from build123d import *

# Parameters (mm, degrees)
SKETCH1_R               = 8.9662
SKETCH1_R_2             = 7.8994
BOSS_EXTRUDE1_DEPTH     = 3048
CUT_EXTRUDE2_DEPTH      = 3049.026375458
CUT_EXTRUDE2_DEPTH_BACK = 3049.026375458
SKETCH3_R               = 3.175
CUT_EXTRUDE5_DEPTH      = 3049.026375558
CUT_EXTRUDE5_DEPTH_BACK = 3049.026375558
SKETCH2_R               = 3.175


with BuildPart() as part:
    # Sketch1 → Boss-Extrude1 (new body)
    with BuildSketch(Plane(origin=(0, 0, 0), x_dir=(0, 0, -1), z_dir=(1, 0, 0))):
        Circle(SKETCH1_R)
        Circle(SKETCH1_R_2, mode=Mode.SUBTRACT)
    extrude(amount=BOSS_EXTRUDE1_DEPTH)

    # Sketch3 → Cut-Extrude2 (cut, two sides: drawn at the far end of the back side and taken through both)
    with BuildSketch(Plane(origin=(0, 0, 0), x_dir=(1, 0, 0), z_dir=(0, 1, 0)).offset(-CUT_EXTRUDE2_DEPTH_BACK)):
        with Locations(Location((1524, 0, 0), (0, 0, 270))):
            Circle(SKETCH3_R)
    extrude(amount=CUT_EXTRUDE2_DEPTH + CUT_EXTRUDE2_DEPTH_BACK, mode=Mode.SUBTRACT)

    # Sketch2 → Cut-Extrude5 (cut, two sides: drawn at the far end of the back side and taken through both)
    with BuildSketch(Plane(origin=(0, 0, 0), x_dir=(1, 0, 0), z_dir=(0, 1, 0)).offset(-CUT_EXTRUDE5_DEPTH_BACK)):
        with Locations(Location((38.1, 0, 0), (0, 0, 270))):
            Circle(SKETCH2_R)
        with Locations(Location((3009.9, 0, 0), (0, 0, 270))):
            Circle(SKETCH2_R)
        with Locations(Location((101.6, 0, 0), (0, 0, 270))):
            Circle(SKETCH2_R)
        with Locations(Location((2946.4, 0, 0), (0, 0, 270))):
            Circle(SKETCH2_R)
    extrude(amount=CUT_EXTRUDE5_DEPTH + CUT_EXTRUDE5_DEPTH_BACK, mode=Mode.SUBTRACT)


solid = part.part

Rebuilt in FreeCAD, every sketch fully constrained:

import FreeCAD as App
import Part
import Sketcher
Q = App.Units.Quantity

doc = App.newDocument("Part")
body = doc.addObject("PartDesign::Body", "Body")

# Sketch on YZ plane
sketch1 = body.newObject("Sketcher::SketchObject", "Sketch")
sketch1.AttachmentSupport = (doc.getObject("YZ_Plane"), [""])
sketch1.MapMode = "FlatFace"
sketch1.addGeometry([
    Part.Circle(App.Vector(0, 0, 0), App.Vector(0, 0, 1), 8.9662),
    Part.Circle(App.Vector(0, 0, 0), App.Vector(0, 0, 1), 7.8994),
], False)
sketch1.addConstraint([
    Sketcher.Constraint("Coincident", 0, 3, -1, 1),
    Sketcher.Constraint("Coincident", 1, 3, -1, 1),
    Sketcher.Constraint("Diameter", 0, Q("0.706 in")),
    Sketcher.Constraint("Diameter", 1, Q("0.622 in")),
])
pad1 = body.newObject("PartDesign::Pad", "Pad")
pad1.Profile = sketch1
pad1.Length = Q("120 in")

# Sketch on XZ plane
sketch2 = body.newObject("Sketcher::SketchObject", "Sketch001")
sketch2.AttachmentSupport = (doc.getObject("XZ_Plane"), [""])
sketch2.MapMode = "FlatFace"
sketch2.addGeometry(Part.Circle(App.Vector(1524, 0, 0), App.Vector(0, 0, 1), 3.175), False)
sketch2.addConstraint([
    Sketcher.Constraint("PointOnObject", 0, 3, -1),
    Sketcher.Constraint("Diameter", 0, Q("0.25 in")),
    Sketcher.Constraint("DistanceX", -1, 1, 0, 3, Q("60 in")),
])
pocket1 = body.newObject("PartDesign::Pocket", "Pocket")
pocket1.Profile = sketch2
pocket1.Type = "ThroughAll"
pocket1.Midplane = True

# Sketch on XZ plane
sketch3 = body.newObject("Sketcher::SketchObject", "Sketch002")
sketch3.AttachmentSupport = (doc.getObject("XZ_Plane"), [""])
sketch3.MapMode = "FlatFace"
sketch3.addGeometry([
    Part.Circle(App.Vector(38.1, 0, 0), App.Vector(0, 0, 1), 3.175),
    Part.Circle(App.Vector(3009.9, 0, 0), App.Vector(0, 0, 1), 3.175),
    Part.Circle(App.Vector(101.6, 0, 0), App.Vector(0, 0, 1), 3.175),
    Part.Circle(App.Vector(2946.4, 0, 0), App.Vector(0, 0, 1), 3.175),
], False)
sketch3.addConstraint([
    Sketcher.Constraint("Equal", 0, 1),
    Sketcher.Constraint("Equal", 1, 2),
    Sketcher.Constraint("Equal", 2, 3),
    Sketcher.Constraint("PointOnObject", 0, 3, -1),
    Sketcher.Constraint("PointOnObject", 1, 3, -1),
    Sketcher.Constraint("PointOnObject", 2, 3, -1),
    Sketcher.Constraint("PointOnObject", 3, 3, -1),
    Sketcher.Constraint("Diameter", 0, Q("0.25 in")),
    Sketcher.Constraint("DistanceX", -1, 1, 2, 3, Q("4 in")),
    Sketcher.Constraint("DistanceX", -1, 1, 3, 3, Q("116 in")),
    Sketcher.Constraint("DistanceX", 0, 3, 1, 3, Q("117 in")),
    Sketcher.Constraint("DistanceX", -1, 1, 0, 3, Q("1.5 in")),
])
pocket2 = body.newObject("PartDesign::Pocket", "Pocket001")
pocket2.Profile = sketch3
pocket2.Type = "ThroughAll"
pocket2.Midplane = True

doc.recompute()
